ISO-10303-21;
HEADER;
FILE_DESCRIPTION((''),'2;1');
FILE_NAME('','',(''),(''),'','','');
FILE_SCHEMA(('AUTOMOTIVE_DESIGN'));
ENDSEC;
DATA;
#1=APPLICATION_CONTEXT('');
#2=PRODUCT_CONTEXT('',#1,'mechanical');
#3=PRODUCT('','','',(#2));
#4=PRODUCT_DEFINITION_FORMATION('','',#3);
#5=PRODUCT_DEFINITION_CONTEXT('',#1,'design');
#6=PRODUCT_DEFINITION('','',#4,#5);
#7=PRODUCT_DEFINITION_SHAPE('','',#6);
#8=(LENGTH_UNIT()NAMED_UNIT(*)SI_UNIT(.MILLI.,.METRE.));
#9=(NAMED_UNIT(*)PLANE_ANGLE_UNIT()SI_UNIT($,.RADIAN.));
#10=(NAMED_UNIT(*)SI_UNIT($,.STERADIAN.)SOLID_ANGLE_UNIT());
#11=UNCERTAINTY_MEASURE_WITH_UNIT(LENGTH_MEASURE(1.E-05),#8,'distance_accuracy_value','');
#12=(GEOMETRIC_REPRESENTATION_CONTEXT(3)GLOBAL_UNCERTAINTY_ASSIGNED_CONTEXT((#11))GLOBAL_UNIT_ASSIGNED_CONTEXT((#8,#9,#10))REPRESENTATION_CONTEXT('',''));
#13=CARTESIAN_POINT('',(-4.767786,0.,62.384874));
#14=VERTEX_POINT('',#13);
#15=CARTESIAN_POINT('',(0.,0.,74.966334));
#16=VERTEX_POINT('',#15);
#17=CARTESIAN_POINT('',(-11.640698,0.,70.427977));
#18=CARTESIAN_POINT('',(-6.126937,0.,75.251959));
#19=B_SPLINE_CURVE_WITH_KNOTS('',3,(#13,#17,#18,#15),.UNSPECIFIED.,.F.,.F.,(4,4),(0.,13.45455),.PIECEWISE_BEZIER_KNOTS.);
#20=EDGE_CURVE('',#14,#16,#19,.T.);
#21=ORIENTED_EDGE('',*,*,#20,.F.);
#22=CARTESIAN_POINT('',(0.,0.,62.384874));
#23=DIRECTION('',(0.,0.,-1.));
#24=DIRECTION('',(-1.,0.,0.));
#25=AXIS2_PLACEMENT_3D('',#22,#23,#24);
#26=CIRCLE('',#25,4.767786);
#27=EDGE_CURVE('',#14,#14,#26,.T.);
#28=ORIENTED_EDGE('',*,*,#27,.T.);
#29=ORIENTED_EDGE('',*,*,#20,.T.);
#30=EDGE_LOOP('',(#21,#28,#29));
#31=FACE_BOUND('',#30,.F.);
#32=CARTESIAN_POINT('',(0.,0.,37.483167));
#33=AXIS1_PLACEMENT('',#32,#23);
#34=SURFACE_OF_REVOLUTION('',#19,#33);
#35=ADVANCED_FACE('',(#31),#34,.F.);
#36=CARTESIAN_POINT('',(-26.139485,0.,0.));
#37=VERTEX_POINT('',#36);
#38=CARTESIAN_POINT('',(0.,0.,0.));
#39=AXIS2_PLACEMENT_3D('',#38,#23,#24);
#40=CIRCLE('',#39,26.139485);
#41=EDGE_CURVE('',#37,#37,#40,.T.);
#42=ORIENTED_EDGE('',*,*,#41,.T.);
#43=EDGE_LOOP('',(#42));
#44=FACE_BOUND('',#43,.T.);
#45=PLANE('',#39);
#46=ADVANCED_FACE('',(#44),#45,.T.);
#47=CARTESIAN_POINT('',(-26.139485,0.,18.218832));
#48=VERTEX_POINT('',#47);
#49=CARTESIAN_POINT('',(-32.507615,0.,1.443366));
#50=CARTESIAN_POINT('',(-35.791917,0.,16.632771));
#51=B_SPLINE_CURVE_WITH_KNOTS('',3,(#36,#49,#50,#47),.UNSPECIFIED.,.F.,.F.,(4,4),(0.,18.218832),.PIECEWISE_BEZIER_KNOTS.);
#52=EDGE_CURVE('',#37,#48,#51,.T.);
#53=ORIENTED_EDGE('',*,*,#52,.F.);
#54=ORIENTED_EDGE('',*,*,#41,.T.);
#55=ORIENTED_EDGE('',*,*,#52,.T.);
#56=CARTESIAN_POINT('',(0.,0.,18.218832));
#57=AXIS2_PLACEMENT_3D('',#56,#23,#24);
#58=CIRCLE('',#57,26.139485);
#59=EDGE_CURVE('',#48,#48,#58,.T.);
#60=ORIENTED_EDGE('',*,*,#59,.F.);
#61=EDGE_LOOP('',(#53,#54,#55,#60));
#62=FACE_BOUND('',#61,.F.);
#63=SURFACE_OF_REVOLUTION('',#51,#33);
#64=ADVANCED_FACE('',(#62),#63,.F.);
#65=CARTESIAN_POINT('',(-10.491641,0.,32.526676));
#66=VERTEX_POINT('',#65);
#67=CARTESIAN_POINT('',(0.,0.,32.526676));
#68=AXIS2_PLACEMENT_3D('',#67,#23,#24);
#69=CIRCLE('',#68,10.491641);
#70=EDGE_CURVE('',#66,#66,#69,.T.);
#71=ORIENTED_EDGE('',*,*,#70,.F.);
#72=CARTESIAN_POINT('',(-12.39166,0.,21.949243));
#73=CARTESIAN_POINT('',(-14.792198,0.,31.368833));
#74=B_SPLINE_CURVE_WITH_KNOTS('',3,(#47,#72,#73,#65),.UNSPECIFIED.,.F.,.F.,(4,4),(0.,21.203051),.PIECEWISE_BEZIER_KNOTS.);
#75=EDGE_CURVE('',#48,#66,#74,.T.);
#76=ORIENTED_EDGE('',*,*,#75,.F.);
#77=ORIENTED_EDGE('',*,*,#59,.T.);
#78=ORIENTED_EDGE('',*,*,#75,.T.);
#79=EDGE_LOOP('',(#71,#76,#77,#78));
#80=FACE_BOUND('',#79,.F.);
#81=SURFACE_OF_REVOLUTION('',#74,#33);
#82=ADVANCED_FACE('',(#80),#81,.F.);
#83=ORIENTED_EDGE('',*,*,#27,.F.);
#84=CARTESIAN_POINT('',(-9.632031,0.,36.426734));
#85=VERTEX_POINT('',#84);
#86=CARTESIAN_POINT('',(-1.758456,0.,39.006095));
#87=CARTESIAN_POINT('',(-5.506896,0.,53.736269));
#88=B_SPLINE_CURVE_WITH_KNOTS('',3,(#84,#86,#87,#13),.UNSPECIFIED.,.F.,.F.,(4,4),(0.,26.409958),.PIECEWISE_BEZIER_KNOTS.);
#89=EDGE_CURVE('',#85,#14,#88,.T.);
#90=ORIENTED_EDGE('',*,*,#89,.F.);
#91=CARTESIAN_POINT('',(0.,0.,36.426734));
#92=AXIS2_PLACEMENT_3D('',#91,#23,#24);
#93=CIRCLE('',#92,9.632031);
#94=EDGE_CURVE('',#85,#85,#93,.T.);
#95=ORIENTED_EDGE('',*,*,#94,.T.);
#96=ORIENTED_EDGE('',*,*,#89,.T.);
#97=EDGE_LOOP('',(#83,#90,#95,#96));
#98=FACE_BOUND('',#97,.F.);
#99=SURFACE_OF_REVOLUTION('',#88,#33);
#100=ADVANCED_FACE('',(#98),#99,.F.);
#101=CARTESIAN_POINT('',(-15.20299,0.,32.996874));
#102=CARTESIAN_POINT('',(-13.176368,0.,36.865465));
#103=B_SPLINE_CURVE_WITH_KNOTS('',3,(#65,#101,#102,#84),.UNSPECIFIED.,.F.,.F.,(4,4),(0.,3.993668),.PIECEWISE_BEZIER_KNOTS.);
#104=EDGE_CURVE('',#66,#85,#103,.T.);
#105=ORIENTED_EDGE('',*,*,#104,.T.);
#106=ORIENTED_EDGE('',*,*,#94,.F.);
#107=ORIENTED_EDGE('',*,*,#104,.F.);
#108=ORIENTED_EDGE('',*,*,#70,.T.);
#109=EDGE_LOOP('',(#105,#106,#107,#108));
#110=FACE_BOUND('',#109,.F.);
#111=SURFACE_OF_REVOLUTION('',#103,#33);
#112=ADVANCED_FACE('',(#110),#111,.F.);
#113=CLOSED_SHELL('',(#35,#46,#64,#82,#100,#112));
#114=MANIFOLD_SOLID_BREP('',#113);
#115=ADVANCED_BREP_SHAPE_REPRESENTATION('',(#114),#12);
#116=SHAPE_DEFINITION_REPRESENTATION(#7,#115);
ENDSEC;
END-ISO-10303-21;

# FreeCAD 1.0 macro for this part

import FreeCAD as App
import Part
import Sketcher

V = App.Vector

doc = App.newDocument("Part")
body = doc.addObject("PartDesign::Body", "Body")

# Sketch on XZ plane
sketch1 = body.newObject("Sketcher::SketchObject", "Sketch")
sketch1.AttachmentSupport = (doc.getObject("XZ_Plane"), [""])
sketch1.MapMode = "FlatFace"
sketch1.addGeometry([
    Part.LineSegment(V(-26.139485, 0, 0), V(0, 0, 0)),  # 0
    Part.LineSegment(V(0, 0, 0), V(0, 74.966334, 0)),  # 1
    Part.BSplineCurve([V(-4.767786, 62.384874, 0), V(-11.640698, 70.427977, 0), V(-6.126937, 75.251959, 0), V(0, 74.966334, 0)], [4, 4], [0, 13.45455], False, 3, [1, 1, 1, 1], False),  # 2
    Part.BSplineCurve([V(-9.632031, 36.426734, 0), V(-1.758456, 39.006095, 0), V(-5.506896, 53.736269, 0), V(-4.767786, 62.384874, 0)], [4, 4], [0, 26.409958], False, 3, [1, 1, 1, 1], False),  # 3
    Part.BSplineCurve([V(-10.491641, 32.526676, 0), V(-15.20299, 32.996874, 0), V(-13.176368, 36.865465, 0), V(-9.632031, 36.426734, 0)], [4, 4], [0, 3.993668], False, 3, [1, 1, 1, 1], False),  # 4
    Part.BSplineCurve([V(-26.139485, 18.218832, 0), V(-12.39166, 21.949243, 0), V(-14.792198, 31.368833, 0), V(-10.491641, 32.526676, 0)], [4, 4], [0, 21.203051], False, 3, [1, 1, 1, 1], False),  # 5
    Part.BSplineCurve([V(-26.139485, 0, 0), V(-32.507615, 1.443366, 0), V(-35.791917, 16.632771, 0), V(-26.139485, 18.218832, 0)], [4, 4], [0, 18.218832], False, 3, [1, 1, 1, 1], False),  # 6
], False)
sketch1.addConstraint([
    Sketcher.Constraint("Block", 2),
    Sketcher.Constraint("Block", 3),
    Sketcher.Constraint("Block", 4),
    Sketcher.Constraint("Block", 5),
    Sketcher.Constraint("Block", 6),
    Sketcher.Constraint("Coincident", 0, 2, 1, 1),
    Sketcher.Constraint("Coincident", 1, 2, 2, 2),
    Sketcher.Constraint("Coincident", 6, 1, 0, 1),
    Sketcher.Constraint("Horizontal", 0),
    Sketcher.Constraint("Vertical", 1),
])
revolution = body.newObject("PartDesign::Revolution", "Revolution")
revolution.Profile = sketch1
revolution.ReferenceAxis = (sketch1, ["V_Axis"])
revolution.Angle = 360

doc.recompute()
